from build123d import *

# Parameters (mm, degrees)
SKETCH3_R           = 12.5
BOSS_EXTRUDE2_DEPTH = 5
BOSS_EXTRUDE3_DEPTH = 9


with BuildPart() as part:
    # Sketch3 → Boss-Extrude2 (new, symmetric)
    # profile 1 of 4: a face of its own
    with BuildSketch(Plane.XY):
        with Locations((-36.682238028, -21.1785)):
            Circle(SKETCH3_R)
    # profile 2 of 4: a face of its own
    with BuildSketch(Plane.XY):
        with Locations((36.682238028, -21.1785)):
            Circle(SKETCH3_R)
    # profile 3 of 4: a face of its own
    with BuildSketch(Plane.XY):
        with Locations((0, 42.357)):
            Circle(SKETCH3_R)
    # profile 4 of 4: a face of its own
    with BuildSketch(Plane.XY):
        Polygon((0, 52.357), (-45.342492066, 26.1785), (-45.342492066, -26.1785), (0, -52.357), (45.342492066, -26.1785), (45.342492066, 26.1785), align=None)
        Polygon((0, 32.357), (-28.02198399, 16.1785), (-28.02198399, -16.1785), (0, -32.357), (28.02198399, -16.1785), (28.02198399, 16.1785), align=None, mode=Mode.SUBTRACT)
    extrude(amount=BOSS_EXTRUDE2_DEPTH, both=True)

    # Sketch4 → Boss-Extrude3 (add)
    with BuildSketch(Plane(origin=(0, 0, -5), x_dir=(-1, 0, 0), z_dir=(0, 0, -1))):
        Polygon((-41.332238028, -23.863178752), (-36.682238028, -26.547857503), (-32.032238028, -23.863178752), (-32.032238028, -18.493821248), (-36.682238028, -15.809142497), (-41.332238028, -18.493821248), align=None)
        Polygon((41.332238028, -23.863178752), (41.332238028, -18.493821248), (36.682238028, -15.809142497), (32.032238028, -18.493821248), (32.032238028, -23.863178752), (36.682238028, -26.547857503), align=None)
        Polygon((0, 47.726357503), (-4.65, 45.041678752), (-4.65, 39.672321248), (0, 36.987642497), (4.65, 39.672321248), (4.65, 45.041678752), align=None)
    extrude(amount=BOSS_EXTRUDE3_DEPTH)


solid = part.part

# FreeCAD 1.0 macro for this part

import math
import FreeCAD as App
import Part
import Sketcher
from FreeCAD import Vector
Q = App.Units.Quantity

doc = App.newDocument("Part")
body = doc.addObject("PartDesign::Body", "Body")

# Sketch on XY plane
sketch1 = body.newObject("Sketcher::SketchObject", "Sketch")
sketch1.AttachmentSupport = (doc.getObject("XY_Plane"), [""])
sketch1.MapMode = "FlatFace"
sketch1.addGeometry([
    Part.LineSegment(Vector(-33, -33, 0), Vector(0, -52, 0)),  # 0
    Part.LineSegment(Vector(0, -52, 0), Vector(33, -33, 0)),  # 1
    Part.ArcOfCircle(Part.Circle(Vector(37, -21, 0), Vector(0, 0, 1), 12), math.radians(-106), math.radians(46)),  # 2
    Part.LineSegment(Vector(45, -12, 0), Vector(45, 26, 0)),  # 3
    Part.LineSegment(Vector(45, 26, 0), Vector(12, 45, 0)),  # 4
    Part.ArcOfCircle(Part.Circle(Vector(0, 42, 0), Vector(0, 0, 1), 12), math.radians(14), math.radians(166)),  # 5
    Part.LineSegment(Vector(-12, 45, 0), Vector(-45, 26, 0)),  # 6
    Part.LineSegment(Vector(-45, 26, 0), Vector(-45, -12, 0)),  # 7
    Part.ArcOfCircle(Part.Circle(Vector(-37, -21, 0), Vector(0, 0, 1), 12), math.radians(134), math.radians(286)),  # 8
    Part.LineSegment(Vector(0, -32, 0), Vector(-25, -18, 0)),  # 9
    Part.ArcOfCircle(Part.Circle(Vector(-37, -21, 0), Vector(0, 0, 1), 12), math.radians(14), math.radians(46)),  # 10
    Part.LineSegment(Vector(-28, -12, 0), Vector(-28, 16, 0)),  # 11
    Part.LineSegment(Vector(-28, 16, 0), Vector(-3, 30, 0)),  # 12
    Part.ArcOfCircle(Part.Circle(Vector(0, 42, 0), Vector(0, 0, 1), 12), math.radians(-106), math.radians(-74)),  # 13
    Part.LineSegment(Vector(3, 30, 0), Vector(28, 16, 0)),  # 14
    Part.LineSegment(Vector(28, 16, 0), Vector(28, -12, 0)),  # 15
    Part.ArcOfCircle(Part.Circle(Vector(37, -21, 0), Vector(0, 0, 1), 12), math.radians(134), math.radians(166)),  # 16
    Part.LineSegment(Vector(25, -18, 0), Vector(0, -32, 0)),  # 17
], False)
sketch1.addConstraint([
    Sketcher.Constraint("Coincident", 0, 2, 1, 1),
    Sketcher.Constraint("Coincident", 1, 2, 2, 1),
    Sketcher.Constraint("Coincident", 2, 2, 3, 1),
    Sketcher.Constraint("Coincident", 3, 2, 4, 1),
    Sketcher.Constraint("Coincident", 4, 2, 5, 1),
    Sketcher.Constraint("Coincident", 5, 2, 6, 1),
    Sketcher.Constraint("Coincident", 6, 2, 7, 1),
    Sketcher.Constraint("Coincident", 7, 2, 8, 1),
    Sketcher.Constraint("Coincident", 8, 2, 0, 1),
    Sketcher.Constraint("Coincident", 9, 2, 10, 1),
    Sketcher.Constraint("Coincident", 10, 2, 11, 1),
    Sketcher.Constraint("Coincident", 11, 2, 12, 1),
    Sketcher.Constraint("Coincident", 12, 2, 13, 1),
    Sketcher.Constraint("Coincident", 13, 2, 14, 1),
    Sketcher.Constraint("Coincident", 14, 2, 15, 1),
    Sketcher.Constraint("Coincident", 15, 2, 16, 1),
    Sketcher.Constraint("Coincident", 16, 2, 17, 1),
    Sketcher.Constraint("Coincident", 17, 2, 9, 1),
    Sketcher.Constraint("Vertical", 3),
    Sketcher.Constraint("Vertical", 7),
    Sketcher.Constraint("Vertical", 11),
    Sketcher.Constraint("Vertical", 15),
    Sketcher.Constraint("Coincident", 10, 3, 8, 3),
    Sketcher.Constraint("Coincident", 13, 3, 5, 3),
    Sketcher.Constraint("Coincident", 16, 3, 2, 3),
    Sketcher.Constraint("Equal", 2, 5),
    Sketcher.Constraint("Equal", 5, 8),
    Sketcher.Constraint("Equal", 8, 10),
    Sketcher.Constraint("Equal", 10, 13),
    Sketcher.Constraint("Equal", 13, 16),
    Sketcher.Constraint("Symmetric", 2, 3, 8, 3, -2),
    Sketcher.Constraint("Symmetric", 4, 2, 5, 2, -2),
    Sketcher.Constraint("Symmetric", 3, 2, 6, 2, -2),
    Sketcher.Constraint("Symmetric", 11, 2, 14, 2, -2),
    Sketcher.Constraint("PointOnObject", 0, 2, -2),
    Sketcher.Constraint("PointOnObject", 17, 2, -2),
    Sketcher.Constraint("Parallel", 0, 4),
    Sketcher.Constraint("Parallel", 1, 6),
    Sketcher.Constraint("Parallel", 4, 9),
    Sketcher.Constraint("Parallel", 6, 12),
    Sketcher.Constraint("Parallel", 9, 14),
    Sketcher.Constraint("Parallel", 12, 17),
    Sketcher.Constraint("Horizontal", 7, 2, 10, 2),
    Sketcher.Constraint("Equal", 1, 4),
    Sketcher.Constraint("Equal", 9, 12),
    Sketcher.Constraint("Radius", 2, Q("12.5 mm")),
    Sketcher.Constraint("Angle", 0, Q("-30 deg")),
    Sketcher.Constraint("DistanceY", 8, 2, 9, 2, Q("15 mm")),
    Sketcher.Constraint("DistanceY", 11, 2, 6, 2, Q("10 mm")),
    Sketcher.Constraint("DistanceY", 12, 2, 5, 2, Q("15 mm")),
    Sketcher.Constraint("DistanceY", -1, 1, 5, 3, Q("42.357 mm")),
    Sketcher.Constraint("DistanceY", 0, 2, -1, 1, Q("52.357 mm")),
    Sketcher.Constraint("DistanceY", 2, 3, 3, 2, Q("47.357 mm")),
])
pad1 = body.newObject("PartDesign::Pad", "Pad")
pad1.Profile = sketch1
pad1.Length = 10
pad1.Midplane = True

# Sketch on XY plane
sketch2 = body.newObject("Sketcher::SketchObject", "Sketch001")
sketch2.AttachmentSupport = (doc.getObject("XY_Plane"), [""])
sketch2.MapMode = "FlatFace"
sketch2.AttachmentOffset = App.Placement(Vector(0, 0, -5), App.Rotation())
sketch2.addGeometry([
    Part.LineSegment(Vector(41, -24, 0), Vector(37, -27, 0)),  # 0
    Part.LineSegment(Vector(37, -27, 0), Vector(32, -24, 0)),  # 1
    Part.LineSegment(Vector(32, -24, 0), Vector(32, -18, 0)),  # 2
    Part.LineSegment(Vector(32, -18, 0), Vector(37, -16, 0)),  # 3
    Part.LineSegment(Vector(37, -16, 0), Vector(41, -18, 0)),  # 4
    Part.LineSegment(Vector(41, -18, 0), Vector(41, -24, 0)),  # 5
    Part.LineSegment(Vector(-41, -24, 0), Vector(-41, -18, 0)),  # 6
    Part.LineSegment(Vector(-41, -18, 0), Vector(-37, -16, 0)),  # 7
    Part.LineSegment(Vector(-37, -16, 0), Vector(-32, -18, 0)),  # 8
    Part.LineSegment(Vector(-32, -18, 0), Vector(-32, -24, 0)),  # 9
    Part.LineSegment(Vector(-32, -24, 0), Vector(-37, -27, 0)),  # 10
    Part.LineSegment(Vector(-37, -27, 0), Vector(-41, -24, 0)),  # 11
    Part.LineSegment(Vector(0, 48, 0), Vector(5, 45, 0)),  # 12
    Part.LineSegment(Vector(5, 45, 0), Vector(5, 40, 0)),  # 13
    Part.LineSegment(Vector(5, 40, 0), Vector(0, 37, 0)),  # 14
    Part.LineSegment(Vector(0, 37, 0), Vector(-5, 40, 0)),  # 15
    Part.LineSegment(Vector(-5, 40, 0), Vector(-5, 45, 0)),  # 16
    Part.LineSegment(Vector(-5, 45, 0), Vector(0, 48, 0)),  # 17
], False)
sketch2.addConstraint([
    Sketcher.Constraint("Coincident", 0, 2, 1, 1),
    Sketcher.Constraint("Coincident", 1, 2, 2, 1),
    Sketcher.Constraint("Coincident", 2, 2, 3, 1),
    Sketcher.Constraint("Coincident", 3, 2, 4, 1),
    Sketcher.Constraint("Coincident", 4, 2, 5, 1),
    Sketcher.Constraint("Coincident", 5, 2, 0, 1),
    Sketcher.Constraint("Coincident", 6, 2, 7, 1),
    Sketcher.Constraint("Coincident", 7, 2, 8, 1),
    Sketcher.Constraint("Coincident", 8, 2, 9, 1),
    Sketcher.Constraint("Coincident", 9, 2, 10, 1),
    Sketcher.Constraint("Coincident", 10, 2, 11, 1),
    Sketcher.Constraint("Coincident", 11, 2, 6, 1),
    Sketcher.Constraint("Coincident", 12, 2, 13, 1),
    Sketcher.Constraint("Coincident", 13, 2, 14, 1),
    Sketcher.Constraint("Coincident", 14, 2, 15, 1),
    Sketcher.Constraint("Coincident", 15, 2, 16, 1),
    Sketcher.Constraint("Coincident", 16, 2, 17, 1),
    Sketcher.Constraint("Coincident", 17, 2, 12, 1),
    Sketcher.Constraint("Vertical", 2),
    Sketcher.Constraint("Vertical", 5),
    Sketcher.Constraint("Vertical", 6),
    Sketcher.Constraint("Vertical", 9),
    Sketcher.Constraint("Vertical", 13),
    Sketcher.Constraint("Vertical", 16),
    Sketcher.Constraint("Symmetric", 4, 2, 6, 2, -2),
    Sketcher.Constraint("Symmetric", 3, 2, 7, 2, -2),
    Sketcher.Constraint("Symmetric", 2, 2, 8, 2, -2),
    Sketcher.Constraint("Symmetric", 0, 2, 10, 2, -2),
    Sketcher.Constraint("Symmetric", 13, 2, 15, 2, -2),
    Sketcher.Constraint("PointOnObject", 14, 2, -2),
    Sketcher.Constraint("PointOnObject", 17, 2, -2),
    Sketcher.Constraint("Parallel", 0, 3),
    Sketcher.Constraint("Parallel", 1, 4),
    Sketcher.Constraint("Parallel", 3, 7),
    Sketcher.Constraint("Parallel", 7, 10),
    Sketcher.Constraint("Parallel", 8, 11),
    Sketcher.Constraint("Parallel", 11, 12),
    Sketcher.Constraint("Parallel", 10, 14),
    Sketcher.Constraint("Parallel", 14, 17),
    Sketcher.Constraint("Horizontal", 2, 2, 4, 2),
    Sketcher.Constraint("Horizontal", 1, 2, 5, 2),
    Sketcher.Constraint("Equal", 9, 13),
    Sketcher.Constraint("Equal", 11, 12),
    Sketcher.Constraint("Angle", 0, Q("-150 deg")),
    Sketcher.Constraint("DistanceX", 2, 2, 4, 2, Q("9.3 mm")),
    Sketcher.Constraint("DistanceY", 2, 2, 12, 2, Q("63.5355 mm")),
    Sketcher.Constraint("DistanceY", 2, 1, 2, 2, Q("5.369358 mm")),
    Sketcher.Constraint("DistanceX", -1, 1, 0, 2, Q("36.682238 mm")),
    Sketcher.Constraint("DistanceY", 1, 2, -1, 1, Q("23.863179 mm")),
])
pad2 = body.newObject("PartDesign::Pad", "Pad001")
pad2.Profile = sketch2
pad2.Length = 9
pad2.Reversed = True

doc.recompute()
